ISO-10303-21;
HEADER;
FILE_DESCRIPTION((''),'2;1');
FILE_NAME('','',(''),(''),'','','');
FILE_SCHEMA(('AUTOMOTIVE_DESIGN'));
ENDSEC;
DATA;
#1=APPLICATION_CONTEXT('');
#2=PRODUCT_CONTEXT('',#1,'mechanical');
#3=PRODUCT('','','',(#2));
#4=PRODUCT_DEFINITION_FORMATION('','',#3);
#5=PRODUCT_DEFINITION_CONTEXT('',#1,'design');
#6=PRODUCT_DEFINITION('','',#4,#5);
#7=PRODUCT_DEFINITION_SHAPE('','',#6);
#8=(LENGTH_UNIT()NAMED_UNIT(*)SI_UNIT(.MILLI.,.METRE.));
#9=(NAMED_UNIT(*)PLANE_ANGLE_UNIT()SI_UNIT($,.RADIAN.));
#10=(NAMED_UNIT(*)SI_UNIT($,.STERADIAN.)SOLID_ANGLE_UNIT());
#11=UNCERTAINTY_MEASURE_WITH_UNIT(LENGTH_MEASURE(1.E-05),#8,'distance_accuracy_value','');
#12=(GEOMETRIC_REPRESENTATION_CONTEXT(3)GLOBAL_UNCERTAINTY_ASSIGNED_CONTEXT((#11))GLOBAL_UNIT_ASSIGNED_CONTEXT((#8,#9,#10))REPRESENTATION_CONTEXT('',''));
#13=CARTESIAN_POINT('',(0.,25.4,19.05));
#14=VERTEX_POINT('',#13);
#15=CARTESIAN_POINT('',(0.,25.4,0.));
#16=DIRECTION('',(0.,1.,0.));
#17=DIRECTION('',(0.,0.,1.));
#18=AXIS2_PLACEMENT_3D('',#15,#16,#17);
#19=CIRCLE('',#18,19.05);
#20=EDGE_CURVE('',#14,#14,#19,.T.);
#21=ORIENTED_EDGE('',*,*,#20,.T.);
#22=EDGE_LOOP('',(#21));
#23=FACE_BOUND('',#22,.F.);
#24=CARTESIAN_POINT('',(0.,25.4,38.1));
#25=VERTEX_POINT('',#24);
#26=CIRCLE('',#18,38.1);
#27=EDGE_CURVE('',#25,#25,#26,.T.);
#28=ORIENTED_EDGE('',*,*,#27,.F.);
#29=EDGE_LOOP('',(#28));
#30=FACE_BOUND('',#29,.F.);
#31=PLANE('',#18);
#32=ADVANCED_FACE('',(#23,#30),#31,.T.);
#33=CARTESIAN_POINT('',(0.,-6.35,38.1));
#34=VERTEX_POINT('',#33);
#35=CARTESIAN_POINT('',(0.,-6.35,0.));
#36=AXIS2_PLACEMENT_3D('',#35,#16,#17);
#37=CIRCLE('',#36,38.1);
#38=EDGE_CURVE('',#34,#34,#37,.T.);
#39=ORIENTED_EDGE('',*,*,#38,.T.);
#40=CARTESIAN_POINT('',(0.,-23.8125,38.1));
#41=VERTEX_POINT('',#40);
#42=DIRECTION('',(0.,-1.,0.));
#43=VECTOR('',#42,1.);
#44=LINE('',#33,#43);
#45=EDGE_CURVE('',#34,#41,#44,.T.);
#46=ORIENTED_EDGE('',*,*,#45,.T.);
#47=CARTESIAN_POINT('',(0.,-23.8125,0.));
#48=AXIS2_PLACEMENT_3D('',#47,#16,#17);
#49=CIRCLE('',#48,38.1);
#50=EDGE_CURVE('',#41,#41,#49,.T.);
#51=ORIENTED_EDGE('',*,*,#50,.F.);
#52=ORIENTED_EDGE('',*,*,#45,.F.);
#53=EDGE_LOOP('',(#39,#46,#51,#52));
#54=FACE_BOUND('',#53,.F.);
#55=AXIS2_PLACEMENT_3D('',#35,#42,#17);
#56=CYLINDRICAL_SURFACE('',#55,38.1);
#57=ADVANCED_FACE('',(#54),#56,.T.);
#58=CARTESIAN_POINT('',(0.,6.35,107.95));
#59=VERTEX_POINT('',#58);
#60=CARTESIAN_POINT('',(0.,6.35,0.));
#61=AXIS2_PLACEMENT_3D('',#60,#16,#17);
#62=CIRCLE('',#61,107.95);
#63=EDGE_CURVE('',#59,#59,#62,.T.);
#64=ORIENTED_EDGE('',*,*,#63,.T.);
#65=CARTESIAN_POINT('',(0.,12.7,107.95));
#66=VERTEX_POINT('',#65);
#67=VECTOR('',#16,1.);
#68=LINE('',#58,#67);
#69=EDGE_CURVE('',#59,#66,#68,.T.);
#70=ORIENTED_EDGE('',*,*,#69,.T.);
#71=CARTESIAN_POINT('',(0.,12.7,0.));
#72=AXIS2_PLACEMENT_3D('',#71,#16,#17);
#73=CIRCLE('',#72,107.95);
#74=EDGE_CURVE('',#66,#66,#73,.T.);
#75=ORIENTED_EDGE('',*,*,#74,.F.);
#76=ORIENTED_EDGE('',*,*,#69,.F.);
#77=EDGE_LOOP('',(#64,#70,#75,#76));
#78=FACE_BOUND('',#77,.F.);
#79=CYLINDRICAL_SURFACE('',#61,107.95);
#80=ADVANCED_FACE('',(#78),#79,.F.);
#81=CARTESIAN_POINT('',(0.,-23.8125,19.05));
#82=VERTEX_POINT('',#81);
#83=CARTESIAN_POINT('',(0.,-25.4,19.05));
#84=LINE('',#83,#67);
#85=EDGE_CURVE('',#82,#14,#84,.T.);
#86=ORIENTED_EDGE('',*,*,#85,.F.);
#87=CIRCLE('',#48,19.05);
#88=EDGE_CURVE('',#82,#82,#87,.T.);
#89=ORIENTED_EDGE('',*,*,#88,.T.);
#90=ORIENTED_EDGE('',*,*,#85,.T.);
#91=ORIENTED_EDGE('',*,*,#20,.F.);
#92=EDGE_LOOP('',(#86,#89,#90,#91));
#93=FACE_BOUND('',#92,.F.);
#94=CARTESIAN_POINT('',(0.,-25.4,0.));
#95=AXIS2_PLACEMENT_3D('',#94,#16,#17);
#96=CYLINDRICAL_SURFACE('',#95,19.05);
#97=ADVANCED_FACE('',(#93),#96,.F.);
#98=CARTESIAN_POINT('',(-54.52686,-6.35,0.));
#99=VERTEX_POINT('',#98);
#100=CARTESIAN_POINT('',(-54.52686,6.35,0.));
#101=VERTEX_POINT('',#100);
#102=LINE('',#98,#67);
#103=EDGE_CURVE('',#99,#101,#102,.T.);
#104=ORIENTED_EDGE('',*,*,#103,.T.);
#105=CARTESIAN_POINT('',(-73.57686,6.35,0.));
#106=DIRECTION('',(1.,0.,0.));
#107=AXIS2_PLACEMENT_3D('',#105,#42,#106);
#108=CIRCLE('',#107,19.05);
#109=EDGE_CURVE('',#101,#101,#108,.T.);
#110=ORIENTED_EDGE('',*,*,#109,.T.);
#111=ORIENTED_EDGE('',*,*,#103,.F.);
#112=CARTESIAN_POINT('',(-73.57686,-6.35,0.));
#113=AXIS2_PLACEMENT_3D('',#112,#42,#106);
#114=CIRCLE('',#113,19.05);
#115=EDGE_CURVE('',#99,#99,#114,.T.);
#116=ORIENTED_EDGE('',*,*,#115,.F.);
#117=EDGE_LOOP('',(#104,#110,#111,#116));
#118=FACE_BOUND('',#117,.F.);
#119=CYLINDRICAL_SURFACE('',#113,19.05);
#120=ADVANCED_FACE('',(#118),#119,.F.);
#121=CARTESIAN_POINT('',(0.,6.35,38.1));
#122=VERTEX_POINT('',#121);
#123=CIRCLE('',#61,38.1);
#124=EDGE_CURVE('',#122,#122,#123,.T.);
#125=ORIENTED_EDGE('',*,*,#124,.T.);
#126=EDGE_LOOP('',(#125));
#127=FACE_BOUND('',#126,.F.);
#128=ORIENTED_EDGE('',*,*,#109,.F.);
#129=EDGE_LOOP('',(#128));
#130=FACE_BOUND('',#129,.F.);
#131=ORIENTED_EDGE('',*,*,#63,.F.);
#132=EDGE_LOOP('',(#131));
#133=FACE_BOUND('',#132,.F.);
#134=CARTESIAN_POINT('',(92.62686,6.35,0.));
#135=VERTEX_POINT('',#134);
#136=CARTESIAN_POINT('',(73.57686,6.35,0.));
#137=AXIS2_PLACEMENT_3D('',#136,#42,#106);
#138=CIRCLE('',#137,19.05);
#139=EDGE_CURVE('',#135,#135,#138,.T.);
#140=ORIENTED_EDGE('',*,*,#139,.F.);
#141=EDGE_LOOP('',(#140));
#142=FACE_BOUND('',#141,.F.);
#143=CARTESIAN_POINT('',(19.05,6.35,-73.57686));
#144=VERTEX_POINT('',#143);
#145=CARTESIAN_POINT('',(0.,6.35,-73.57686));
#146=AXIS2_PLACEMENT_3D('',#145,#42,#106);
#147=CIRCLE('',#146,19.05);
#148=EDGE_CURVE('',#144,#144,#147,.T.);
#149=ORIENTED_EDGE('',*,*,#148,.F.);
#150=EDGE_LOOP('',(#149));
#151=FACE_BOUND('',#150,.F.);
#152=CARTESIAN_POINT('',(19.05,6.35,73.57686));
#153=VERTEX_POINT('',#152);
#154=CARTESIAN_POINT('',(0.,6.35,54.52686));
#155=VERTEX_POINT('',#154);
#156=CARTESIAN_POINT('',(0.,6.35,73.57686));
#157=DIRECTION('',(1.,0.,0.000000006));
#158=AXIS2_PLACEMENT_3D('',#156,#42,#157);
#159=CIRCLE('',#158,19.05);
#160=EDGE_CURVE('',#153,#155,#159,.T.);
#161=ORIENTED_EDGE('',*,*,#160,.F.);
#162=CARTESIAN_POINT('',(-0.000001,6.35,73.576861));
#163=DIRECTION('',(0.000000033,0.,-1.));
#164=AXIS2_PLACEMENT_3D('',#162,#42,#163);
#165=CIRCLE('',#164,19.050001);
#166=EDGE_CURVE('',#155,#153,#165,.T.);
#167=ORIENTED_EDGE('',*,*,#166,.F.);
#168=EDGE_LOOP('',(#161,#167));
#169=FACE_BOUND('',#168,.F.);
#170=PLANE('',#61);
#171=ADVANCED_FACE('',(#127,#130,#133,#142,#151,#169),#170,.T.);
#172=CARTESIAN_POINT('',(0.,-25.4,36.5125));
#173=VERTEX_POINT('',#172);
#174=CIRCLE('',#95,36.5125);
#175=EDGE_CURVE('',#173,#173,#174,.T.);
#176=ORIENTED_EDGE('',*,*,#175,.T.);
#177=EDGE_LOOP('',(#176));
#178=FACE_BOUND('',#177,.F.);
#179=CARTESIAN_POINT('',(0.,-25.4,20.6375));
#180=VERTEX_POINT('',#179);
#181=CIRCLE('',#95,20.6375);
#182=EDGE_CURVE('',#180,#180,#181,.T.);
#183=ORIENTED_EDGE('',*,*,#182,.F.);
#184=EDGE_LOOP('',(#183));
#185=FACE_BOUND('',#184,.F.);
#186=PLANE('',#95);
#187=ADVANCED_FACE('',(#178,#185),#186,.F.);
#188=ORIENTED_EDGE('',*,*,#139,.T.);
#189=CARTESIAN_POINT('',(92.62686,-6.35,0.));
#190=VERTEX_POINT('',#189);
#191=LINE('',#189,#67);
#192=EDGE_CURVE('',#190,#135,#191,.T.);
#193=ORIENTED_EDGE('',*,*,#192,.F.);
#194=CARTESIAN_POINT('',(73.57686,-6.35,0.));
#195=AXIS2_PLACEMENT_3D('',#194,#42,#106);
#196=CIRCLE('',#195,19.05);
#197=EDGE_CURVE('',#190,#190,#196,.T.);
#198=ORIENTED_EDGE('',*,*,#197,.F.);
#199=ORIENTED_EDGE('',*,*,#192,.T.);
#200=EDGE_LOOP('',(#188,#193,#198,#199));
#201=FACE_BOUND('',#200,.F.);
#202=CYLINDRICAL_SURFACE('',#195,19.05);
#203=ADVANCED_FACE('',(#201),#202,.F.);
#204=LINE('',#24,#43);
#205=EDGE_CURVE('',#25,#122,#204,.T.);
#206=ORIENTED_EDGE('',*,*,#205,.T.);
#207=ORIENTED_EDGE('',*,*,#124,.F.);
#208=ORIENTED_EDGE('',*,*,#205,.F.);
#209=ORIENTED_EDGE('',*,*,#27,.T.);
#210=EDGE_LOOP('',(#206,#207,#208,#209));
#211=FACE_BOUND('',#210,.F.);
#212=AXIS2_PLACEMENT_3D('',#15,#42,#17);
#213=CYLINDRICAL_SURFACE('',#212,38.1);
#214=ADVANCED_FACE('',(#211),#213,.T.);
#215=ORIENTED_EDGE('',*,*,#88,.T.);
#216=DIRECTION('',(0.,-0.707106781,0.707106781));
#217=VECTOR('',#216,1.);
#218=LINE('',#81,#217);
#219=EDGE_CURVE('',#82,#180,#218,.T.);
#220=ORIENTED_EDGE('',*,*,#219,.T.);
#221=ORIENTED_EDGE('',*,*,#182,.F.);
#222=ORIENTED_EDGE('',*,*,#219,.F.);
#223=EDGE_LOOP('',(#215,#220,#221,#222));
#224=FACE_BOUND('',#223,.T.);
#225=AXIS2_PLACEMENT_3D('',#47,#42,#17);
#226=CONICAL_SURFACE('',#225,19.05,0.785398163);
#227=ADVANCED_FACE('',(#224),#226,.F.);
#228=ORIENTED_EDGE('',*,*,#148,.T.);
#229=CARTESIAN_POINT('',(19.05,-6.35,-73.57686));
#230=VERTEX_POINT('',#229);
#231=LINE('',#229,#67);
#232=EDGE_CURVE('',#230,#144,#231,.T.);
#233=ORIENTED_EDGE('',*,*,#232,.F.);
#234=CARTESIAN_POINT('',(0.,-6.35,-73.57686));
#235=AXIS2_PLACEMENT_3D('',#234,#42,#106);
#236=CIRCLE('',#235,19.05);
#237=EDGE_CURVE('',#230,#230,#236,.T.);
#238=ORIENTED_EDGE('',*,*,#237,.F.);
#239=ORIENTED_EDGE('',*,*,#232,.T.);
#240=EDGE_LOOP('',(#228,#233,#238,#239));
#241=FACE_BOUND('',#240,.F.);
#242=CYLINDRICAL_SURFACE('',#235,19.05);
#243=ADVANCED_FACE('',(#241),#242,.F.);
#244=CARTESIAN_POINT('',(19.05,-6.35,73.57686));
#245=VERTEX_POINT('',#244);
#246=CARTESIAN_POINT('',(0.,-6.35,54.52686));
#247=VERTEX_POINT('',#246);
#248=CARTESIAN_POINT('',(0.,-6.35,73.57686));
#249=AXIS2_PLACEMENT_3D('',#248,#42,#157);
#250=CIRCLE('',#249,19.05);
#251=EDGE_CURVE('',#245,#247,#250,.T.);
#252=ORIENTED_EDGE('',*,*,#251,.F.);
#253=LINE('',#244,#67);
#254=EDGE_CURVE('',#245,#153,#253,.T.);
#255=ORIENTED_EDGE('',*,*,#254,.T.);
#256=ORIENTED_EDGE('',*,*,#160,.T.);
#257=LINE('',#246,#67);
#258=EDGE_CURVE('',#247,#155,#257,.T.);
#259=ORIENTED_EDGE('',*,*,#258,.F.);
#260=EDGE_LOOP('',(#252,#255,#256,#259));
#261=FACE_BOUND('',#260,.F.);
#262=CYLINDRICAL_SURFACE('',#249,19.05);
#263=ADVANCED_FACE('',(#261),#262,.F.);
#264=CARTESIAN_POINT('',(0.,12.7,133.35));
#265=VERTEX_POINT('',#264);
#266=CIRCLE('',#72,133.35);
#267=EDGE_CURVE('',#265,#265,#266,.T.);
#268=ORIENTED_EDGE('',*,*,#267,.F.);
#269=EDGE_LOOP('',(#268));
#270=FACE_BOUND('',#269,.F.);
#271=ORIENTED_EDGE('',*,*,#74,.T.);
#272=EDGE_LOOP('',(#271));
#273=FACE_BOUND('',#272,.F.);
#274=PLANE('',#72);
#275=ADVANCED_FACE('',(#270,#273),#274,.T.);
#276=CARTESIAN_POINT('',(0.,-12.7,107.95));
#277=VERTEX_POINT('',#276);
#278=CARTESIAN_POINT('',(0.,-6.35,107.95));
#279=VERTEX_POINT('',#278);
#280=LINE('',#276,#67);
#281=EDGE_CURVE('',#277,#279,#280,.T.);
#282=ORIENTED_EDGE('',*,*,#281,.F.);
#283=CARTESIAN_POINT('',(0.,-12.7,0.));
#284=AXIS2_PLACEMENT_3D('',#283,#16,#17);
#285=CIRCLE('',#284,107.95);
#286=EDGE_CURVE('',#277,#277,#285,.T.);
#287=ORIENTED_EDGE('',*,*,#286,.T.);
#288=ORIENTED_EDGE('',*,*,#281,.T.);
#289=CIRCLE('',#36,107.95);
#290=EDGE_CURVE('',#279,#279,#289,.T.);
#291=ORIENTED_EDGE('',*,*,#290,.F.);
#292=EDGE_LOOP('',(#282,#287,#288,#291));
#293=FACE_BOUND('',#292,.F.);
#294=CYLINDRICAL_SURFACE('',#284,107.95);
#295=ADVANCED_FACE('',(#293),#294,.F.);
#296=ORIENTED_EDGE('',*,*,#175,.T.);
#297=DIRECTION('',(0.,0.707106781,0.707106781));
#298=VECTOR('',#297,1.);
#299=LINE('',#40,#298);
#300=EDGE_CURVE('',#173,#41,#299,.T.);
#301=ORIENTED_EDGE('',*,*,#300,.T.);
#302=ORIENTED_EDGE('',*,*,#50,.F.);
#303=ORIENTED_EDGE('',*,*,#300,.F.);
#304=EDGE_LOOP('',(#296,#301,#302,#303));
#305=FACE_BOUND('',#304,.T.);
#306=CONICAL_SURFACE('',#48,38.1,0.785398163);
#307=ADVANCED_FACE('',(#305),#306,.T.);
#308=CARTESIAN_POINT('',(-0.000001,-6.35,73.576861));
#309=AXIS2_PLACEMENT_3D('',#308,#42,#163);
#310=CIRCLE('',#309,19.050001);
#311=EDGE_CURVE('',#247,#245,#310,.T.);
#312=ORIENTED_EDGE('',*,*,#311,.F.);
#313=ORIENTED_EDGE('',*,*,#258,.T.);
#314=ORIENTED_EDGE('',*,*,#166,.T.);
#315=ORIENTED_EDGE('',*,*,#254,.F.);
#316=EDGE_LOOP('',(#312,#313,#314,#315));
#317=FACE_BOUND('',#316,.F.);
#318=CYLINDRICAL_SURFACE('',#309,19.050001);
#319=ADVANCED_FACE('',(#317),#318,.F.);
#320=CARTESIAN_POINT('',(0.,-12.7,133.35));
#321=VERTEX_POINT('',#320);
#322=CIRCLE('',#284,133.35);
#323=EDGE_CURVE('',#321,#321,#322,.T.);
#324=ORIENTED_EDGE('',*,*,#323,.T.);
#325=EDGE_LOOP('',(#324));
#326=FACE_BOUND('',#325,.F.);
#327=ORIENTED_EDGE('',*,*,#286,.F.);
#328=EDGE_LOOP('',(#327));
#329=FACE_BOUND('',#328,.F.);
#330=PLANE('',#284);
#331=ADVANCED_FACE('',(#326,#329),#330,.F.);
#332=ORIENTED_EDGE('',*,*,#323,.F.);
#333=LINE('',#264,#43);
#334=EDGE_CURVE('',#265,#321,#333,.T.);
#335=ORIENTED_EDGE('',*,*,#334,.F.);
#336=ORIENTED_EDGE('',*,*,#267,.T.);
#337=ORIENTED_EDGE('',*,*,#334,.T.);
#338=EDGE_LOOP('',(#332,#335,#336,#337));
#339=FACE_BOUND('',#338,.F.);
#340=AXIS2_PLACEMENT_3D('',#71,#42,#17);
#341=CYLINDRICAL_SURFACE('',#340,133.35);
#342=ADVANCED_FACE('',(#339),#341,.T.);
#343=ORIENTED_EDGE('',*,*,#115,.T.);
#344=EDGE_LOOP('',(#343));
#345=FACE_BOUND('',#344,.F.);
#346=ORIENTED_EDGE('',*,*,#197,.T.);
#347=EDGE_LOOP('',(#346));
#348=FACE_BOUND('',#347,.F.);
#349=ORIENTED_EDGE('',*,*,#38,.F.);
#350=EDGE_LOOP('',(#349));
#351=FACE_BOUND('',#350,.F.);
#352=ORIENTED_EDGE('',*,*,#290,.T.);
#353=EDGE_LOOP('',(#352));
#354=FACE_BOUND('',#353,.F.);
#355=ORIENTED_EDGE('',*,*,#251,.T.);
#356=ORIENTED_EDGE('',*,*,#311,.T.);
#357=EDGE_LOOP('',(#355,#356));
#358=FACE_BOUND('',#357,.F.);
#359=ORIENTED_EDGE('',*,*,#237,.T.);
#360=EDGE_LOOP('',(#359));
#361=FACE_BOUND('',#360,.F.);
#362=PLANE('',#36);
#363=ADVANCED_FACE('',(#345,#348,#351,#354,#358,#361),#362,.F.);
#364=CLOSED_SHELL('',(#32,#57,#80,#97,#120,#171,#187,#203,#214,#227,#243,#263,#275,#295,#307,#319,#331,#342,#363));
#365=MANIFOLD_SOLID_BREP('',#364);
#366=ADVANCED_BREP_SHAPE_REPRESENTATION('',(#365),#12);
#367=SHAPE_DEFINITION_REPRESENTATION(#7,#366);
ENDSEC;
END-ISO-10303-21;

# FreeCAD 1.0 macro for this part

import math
import FreeCAD as App
import Part
import Sketcher
from FreeCAD import Vector
Q = App.Units.Quantity


def edges_at(feature, points):
    """Names of the edges that pass closest to the given points."""
    edges = feature.Shape.Edges
    near = lambda p: min(range(len(edges)), key=lambda i: edges[i].distToShape(Part.Vertex(*p))[0])
    return sorted({f"Edge{near(p) + 1}" for p in points})


def add_polygon(sketch, points):
    """Adds a closed chain of lines whose ends are joined by coincident constraints."""
    first, n = sketch.GeometryCount, len(points)
    for a, b in zip(points, points[1:] + points[:1]):
        sketch.addGeometry(Part.LineSegment(App.Vector(*a, 0), App.Vector(*b, 0)), False)
    for i in range(n):
        sketch.addConstraint(Sketcher.Constraint("Coincident", first + i, 2, first + (i + 1) % n, 1))

doc = App.newDocument("Part")
body = doc.addObject("PartDesign::Body", "Body")

sketch1 = body.newObject("Sketcher::SketchObject", "Sketch")
sketch1.AttachmentSupport = (doc.getObject("YZ_Plane"), [""])
sketch1.MapMode = "FlatFace"
add_polygon(sketch1, [(-25, 19), (25, 19), (25, 38), (6, 38), (6, 108), (13, 108), (13, 133), (-13, 133), (-13, 108), (-6, 108), (-6, 38), (-25, 38)])
sketch1.addConstraint([
    Sketcher.Constraint("Horizontal", 0),
    Sketcher.Constraint("Vertical", 1),
    Sketcher.Constraint("Horizontal", 2),
    Sketcher.Constraint("Vertical", 3),
    Sketcher.Constraint("Horizontal", 4),
    Sketcher.Constraint("Vertical", 5),
    Sketcher.Constraint("Horizontal", 6),
    Sketcher.Constraint("Vertical", 7),
    Sketcher.Constraint("Horizontal", 8),
    Sketcher.Constraint("Vertical", 9),
    Sketcher.Constraint("Horizontal", 10),
    Sketcher.Constraint("Vertical", 11),
    Sketcher.Constraint("Symmetric", 4, 2, 7, 2, -2),
    Sketcher.Constraint("Symmetric", 2, 2, 9, 2, -2),
    Sketcher.Constraint("Equal", 2, 10),
    Sketcher.Constraint("Equal", 10, 1),
    Sketcher.Constraint("Equal", 6, 5),
    Sketcher.Constraint("DistanceX", 0, 1, 0, 2, Q("2 in")),
    Sketcher.Constraint("DistanceX", 6, 2, 6, 1, Q("1 in")),
    Sketcher.Constraint("DistanceX", 2, 2, 2, 1, Q("0.75 in")),
    Sketcher.Constraint("DistanceY", 3, 1, 3, 2, Q("2.75 in")),
    Sketcher.Constraint("DistanceY", -1, 1, 1, 2, Q("1.5 in")),
])
revolution = body.newObject("PartDesign::Revolution", "Revolution")
revolution.Profile = sketch1
revolution.ReferenceAxis = (sketch1, ["H_Axis"])
revolution.Angle = 360

sketch2 = body.newObject("Sketcher::SketchObject", "Sketch001")
sketch2.AttachmentSupport = (doc.getObject("XZ_Plane"), [""])
sketch2.MapMode = "FlatFace"
sketch2.AttachmentOffset = App.Placement(Vector(0, 0, 0.25 * 25.4), App.Rotation())
sketch2.addGeometry([
    Part.Circle(Vector(74, 0, 0), Vector(0, 0, 1), 19),
    Part.Circle(Vector(0, -74, 0), Vector(0, 0, 1), 19),
    Part.Circle(Vector(-74, 0, 0), Vector(0, 0, 1), 19),
    Part.ArcOfCircle(Part.Circle(Vector(0, 74, 0), Vector(0, 0, 1), 19), math.radians(0), math.radians(270)),
    Part.ArcOfCircle(Part.Circle(Vector(0, 74, 0), Vector(0, 0, 1), 19), math.radians(-90), math.radians(0)),
], False)
sketch2.addConstraint([
    Sketcher.Constraint("Tangent", 3, 1, 4, 2),
    Sketcher.Constraint("Coincident", 4, 1, 3, 2),
    Sketcher.Constraint("Equal", 0, 1),
    Sketcher.Constraint("Equal", 1, 2),
    Sketcher.Constraint("Equal", 2, 3),
    Sketcher.Constraint("Symmetric", 0, 3, 2, 3, -1, 1),
    Sketcher.Constraint("Symmetric", 1, 3, 3, 3, -1, 1),
    Sketcher.Constraint("PointOnObject", 0, 3, -1),
    Sketcher.Constraint("PointOnObject", 1, 3, -2),
    Sketcher.Constraint("PointOnObject", 4, 1, -2),
    Sketcher.Constraint("Horizontal", 4, 3, 3, 1),
    Sketcher.Constraint("Diameter", 0, Q("1.5 in")),
    Sketcher.Constraint("DistanceX", -1, 1, 0, 3, Q("73.57686 mm")),
    Sketcher.Constraint("DistanceY", 1, 3, -1, 1, Q("73.57686 mm")),
])
pocket1 = body.newObject("PartDesign::Pocket", "Pocket")
pocket1.Profile = sketch2
pocket1.Length = Q("1 in")
doc.recompute()

chamfer = body.newObject("PartDesign::Chamfer", "Chamfer")
chamfer.Base = (pocket1, edges_at(pocket1, [(0, -25.4, -19.05), (0, -25.4, -38.1)]))
chamfer.Size = Q("0.0625 in")

doc.recompute()
